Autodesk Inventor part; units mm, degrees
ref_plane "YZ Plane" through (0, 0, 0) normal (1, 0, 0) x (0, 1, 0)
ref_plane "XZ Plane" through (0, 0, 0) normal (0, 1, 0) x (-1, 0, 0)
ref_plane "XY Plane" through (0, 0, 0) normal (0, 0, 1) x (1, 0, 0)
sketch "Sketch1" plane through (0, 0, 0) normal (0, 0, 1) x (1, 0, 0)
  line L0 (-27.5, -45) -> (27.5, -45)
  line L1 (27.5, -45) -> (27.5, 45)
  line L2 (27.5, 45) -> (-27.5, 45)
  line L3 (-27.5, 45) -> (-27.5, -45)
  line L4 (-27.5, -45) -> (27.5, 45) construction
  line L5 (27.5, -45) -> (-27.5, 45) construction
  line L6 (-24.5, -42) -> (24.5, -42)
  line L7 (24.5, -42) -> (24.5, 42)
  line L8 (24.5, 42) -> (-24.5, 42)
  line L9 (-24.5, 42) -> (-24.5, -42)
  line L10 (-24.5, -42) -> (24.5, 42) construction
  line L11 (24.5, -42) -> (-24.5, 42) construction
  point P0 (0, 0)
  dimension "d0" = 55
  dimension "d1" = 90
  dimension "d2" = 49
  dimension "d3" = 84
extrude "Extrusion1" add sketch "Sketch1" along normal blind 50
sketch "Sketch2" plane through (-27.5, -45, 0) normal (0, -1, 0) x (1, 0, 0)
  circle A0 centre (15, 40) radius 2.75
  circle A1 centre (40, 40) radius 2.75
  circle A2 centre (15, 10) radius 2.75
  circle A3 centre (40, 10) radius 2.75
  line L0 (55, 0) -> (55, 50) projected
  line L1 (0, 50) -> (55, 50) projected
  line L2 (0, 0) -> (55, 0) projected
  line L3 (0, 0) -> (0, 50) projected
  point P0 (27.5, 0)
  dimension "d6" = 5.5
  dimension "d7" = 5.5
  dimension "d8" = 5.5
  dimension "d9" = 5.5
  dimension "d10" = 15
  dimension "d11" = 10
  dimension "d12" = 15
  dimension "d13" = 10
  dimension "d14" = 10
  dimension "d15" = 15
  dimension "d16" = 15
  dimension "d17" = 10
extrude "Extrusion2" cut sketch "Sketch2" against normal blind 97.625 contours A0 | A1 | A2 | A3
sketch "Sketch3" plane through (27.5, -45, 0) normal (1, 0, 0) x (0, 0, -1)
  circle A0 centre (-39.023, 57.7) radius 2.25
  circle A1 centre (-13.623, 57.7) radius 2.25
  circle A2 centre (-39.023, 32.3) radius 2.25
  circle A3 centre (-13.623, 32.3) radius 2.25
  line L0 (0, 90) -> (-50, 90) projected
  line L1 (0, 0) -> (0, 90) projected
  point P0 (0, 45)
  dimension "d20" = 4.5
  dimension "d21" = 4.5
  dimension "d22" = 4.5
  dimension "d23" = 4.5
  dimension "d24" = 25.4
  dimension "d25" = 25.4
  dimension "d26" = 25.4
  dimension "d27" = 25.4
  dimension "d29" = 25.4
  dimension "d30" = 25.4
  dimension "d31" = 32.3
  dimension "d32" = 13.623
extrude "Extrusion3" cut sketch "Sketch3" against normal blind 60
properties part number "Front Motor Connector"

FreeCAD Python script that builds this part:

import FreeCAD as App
import Part
import Sketcher

V = App.Vector
Q = App.Units.Quantity


def add_polygon(sketch, points):
    """Adds a closed chain of lines whose ends are joined by coincident constraints."""
    first, n = sketch.GeometryCount, len(points)
    for a, b in zip(points, points[1:] + points[:1]):
        sketch.addGeometry(Part.LineSegment(App.Vector(*a, 0), App.Vector(*b, 0)), False)
    for i in range(n):
        sketch.addConstraint(Sketcher.Constraint("Coincident", first + i, 2, first + (i + 1) % n, 1))

doc = App.newDocument("Part")
body = doc.addObject("PartDesign::Body", "Body")

# Sketch on XY plane
sketch1 = body.newObject("Sketcher::SketchObject", "Sketch")
sketch1.AttachmentSupport = (doc.getObject("XY_Plane"), [""])
sketch1.MapMode = "FlatFace"
add_polygon(sketch1, [(-27.5, 45), (-27.5, -45), (27.5, -45), (27.5, 45)])  # lines 0-3
add_polygon(sketch1, [(24.5, -42), (-24.5, -42), (-24.5, 42), (24.5, 42)])  # lines 4-7
sketch1.addConstraint([
    Sketcher.Constraint("Vertical", 0),
    Sketcher.Constraint("Horizontal", 1),
    Sketcher.Constraint("Vertical", 2),
    Sketcher.Constraint("Horizontal", 3),
    Sketcher.Constraint("Horizontal", 4),
    Sketcher.Constraint("Vertical", 5),
    Sketcher.Constraint("Horizontal", 6),
    Sketcher.Constraint("Vertical", 7),
    Sketcher.Constraint("Symmetric", 0, 2, 2, 2, -1, 1),
    Sketcher.Constraint("Symmetric", 4, 2, 6, 2, -1, 1),
    Sketcher.Constraint("DistanceX", 1, 1, 1, 2, Q("55 mm")),
    Sketcher.Constraint("DistanceX", 4, 2, 4, 1, Q("49 mm")),
    Sketcher.Constraint("DistanceY", 0, 2, 0, 1, Q("90 mm")),
    Sketcher.Constraint("DistanceY", 5, 1, 5, 2, Q("84 mm")),
])
pad1 = body.newObject("PartDesign::Pad", "Pad")
pad1.Profile = sketch1
pad1.Length = 50

# Sketch on XZ plane
sketch2 = body.newObject("Sketcher::SketchObject", "Sketch001")
sketch2.AttachmentSupport = (doc.getObject("XZ_Plane"), [""])
sketch2.MapMode = "FlatFace"
sketch2.AttachmentOffset = App.Placement(V(0, 0, 45), App.Rotation())
sketch2.addGeometry([
    Part.Circle(V(-12.5, 40, 0), V(0, 0, 1), 2.75),
    Part.Circle(V(12.5, 40, 0), V(0, 0, 1), 2.75),
    Part.Circle(V(-12.5, 10, 0), V(0, 0, 1), 2.75),
    Part.Circle(V(12.5, 10, 0), V(0, 0, 1), 2.75),
], False)
sketch2.addConstraint([
    Sketcher.Constraint("Equal", 0, 1),
    Sketcher.Constraint("Equal", 1, 2),
    Sketcher.Constraint("Equal", 2, 3),
    Sketcher.Constraint("Symmetric", 0, 3, 1, 3, -2),
    Sketcher.Constraint("Symmetric", 2, 3, 3, 3, -2),
    Sketcher.Constraint("Vertical", 0, 3, 2, 3),
    Sketcher.Constraint("Diameter", 0, Q("5.5 mm")),
    Sketcher.Constraint("DistanceY", -1, 1, 2, 3, Q("10 mm")),
    Sketcher.Constraint("DistanceY", -1, 1, 0, 3, Q("40 mm")),
    Sketcher.Constraint("DistanceX", 0, 3, 1, 3, Q("25 mm")),
])
pocket1 = body.newObject("PartDesign::Pocket", "Pocket")
pocket1.Profile = sketch2
pocket1.Length = 97.625

# Sketch on YZ plane
sketch3 = body.newObject("Sketcher::SketchObject", "Sketch002")
sketch3.AttachmentSupport = (doc.getObject("YZ_Plane"), [""])
sketch3.MapMode = "FlatFace"
sketch3.AttachmentOffset = App.Placement(V(0, 0, 27.5), App.Rotation())
sketch3.addGeometry([
    Part.Circle(V(12.7, 39.023, 0), V(0, 0, 1), 2.25),
    Part.Circle(V(12.7, 13.623, 0), V(0, 0, 1), 2.25),
    Part.Circle(V(-12.7, 39.023, 0), V(0, 0, 1), 2.25),
    Part.Circle(V(-12.7, 13.623, 0), V(0, 0, 1), 2.25),
], False)
sketch3.addConstraint([
    Sketcher.Constraint("Equal", 0, 1),
    Sketcher.Constraint("Equal", 1, 2),
    Sketcher.Constraint("Equal", 2, 3),
    Sketcher.Constraint("Symmetric", 0, 3, 2, 3, -2),
    Sketcher.Constraint("Symmetric", 1, 3, 3, 3, -2),
    Sketcher.Constraint("Vertical", 0, 3, 1, 3),
    Sketcher.Constraint("Diameter", 0, Q("4.5 mm")),
    Sketcher.Constraint("DistanceY", 1, 3, 0, 3, Q("25.4 mm")),
    Sketcher.Constraint("DistanceX", 2, 3, 0, 3, Q("25.4 mm")),
    Sketcher.Constraint("DistanceY", -1, 1, 1, 3, Q("13.623 mm")),
])
pocket2 = body.newObject("PartDesign::Pocket", "Pocket001")
pocket2.Profile = sketch3
pocket2.Length = 60

doc.recompute()
